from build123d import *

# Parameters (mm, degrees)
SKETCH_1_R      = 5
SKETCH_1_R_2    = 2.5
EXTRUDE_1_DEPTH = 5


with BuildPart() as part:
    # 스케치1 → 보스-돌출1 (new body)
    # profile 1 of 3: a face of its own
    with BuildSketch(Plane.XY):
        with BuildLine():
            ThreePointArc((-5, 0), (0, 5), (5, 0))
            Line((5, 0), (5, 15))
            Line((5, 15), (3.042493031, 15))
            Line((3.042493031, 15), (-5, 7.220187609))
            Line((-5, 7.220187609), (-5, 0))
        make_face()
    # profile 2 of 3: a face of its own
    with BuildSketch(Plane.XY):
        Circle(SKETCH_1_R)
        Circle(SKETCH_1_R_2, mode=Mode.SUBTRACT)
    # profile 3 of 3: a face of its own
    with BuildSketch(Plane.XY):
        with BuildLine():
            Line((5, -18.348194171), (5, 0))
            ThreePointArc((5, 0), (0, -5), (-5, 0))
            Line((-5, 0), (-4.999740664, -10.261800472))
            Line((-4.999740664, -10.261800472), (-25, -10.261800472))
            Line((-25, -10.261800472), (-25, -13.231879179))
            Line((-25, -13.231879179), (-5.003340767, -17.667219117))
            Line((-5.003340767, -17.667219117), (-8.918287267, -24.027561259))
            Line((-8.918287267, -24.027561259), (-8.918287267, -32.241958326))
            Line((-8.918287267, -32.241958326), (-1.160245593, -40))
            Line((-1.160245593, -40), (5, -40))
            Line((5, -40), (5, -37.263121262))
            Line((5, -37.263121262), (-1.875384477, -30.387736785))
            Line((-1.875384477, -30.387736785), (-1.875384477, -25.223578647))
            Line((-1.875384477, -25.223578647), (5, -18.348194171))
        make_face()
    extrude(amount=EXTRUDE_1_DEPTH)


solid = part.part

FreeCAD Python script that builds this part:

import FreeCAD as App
import Part
import Sketcher

V = App.Vector


def add_polygon(sketch, points):
    """Adds a closed chain of lines whose ends are joined by coincident constraints."""
    first, n = sketch.GeometryCount, len(points)
    for a, b in zip(points, points[1:] + points[:1]):
        sketch.addGeometry(Part.LineSegment(App.Vector(*a, 0), App.Vector(*b, 0)), False)
    for i in range(n):
        sketch.addConstraint(Sketcher.Constraint("Coincident", first + i, 2, first + (i + 1) % n, 1))

doc = App.newDocument("Part")
body = doc.addObject("PartDesign::Body", "Body")

# Sketch on XY plane
sketch1 = body.newObject("Sketcher::SketchObject", "Sketch")
sketch1.AttachmentSupport = (doc.getObject("XY_Plane"), [""])
sketch1.MapMode = "FlatFace"
add_polygon(sketch1, [(5, 15), (3.042493, 15), (-5, 7.220188), (-5, 0), (-4.999741, -10.2618), (-25, -10.2618), (-25, -13.231879), (-5.003341, -17.667219), (-8.918287, -24.027561), (-8.918287, -32.241958), (-1.160246, -40), (5, -40), (5, -37.263121), (-1.875384, -30.387737), (-1.875384, -25.223579), (5, -18.348194)])  # lines 0-15
sketch1.addGeometry(Part.Circle(V(0, 0, 0), V(0, 0, 1), 2.5), False)  # 16
sketch1.addConstraint(Sketcher.Constraint("Horizontal", 0))
sketch1.addConstraint(Sketcher.Constraint("Vertical", 2))
sketch1.addConstraint(Sketcher.Constraint("Horizontal", 4))
sketch1.addConstraint(Sketcher.Constraint("Vertical", 5))
sketch1.addConstraint(Sketcher.Constraint("Vertical", 8))
sketch1.addConstraint(Sketcher.Constraint("Horizontal", 10))
sketch1.addConstraint(Sketcher.Constraint("Vertical", 11))
sketch1.addConstraint(Sketcher.Constraint("Vertical", 13))
sketch1.addConstraint(Sketcher.Constraint("Vertical", 15))
sketch1.addConstraint(Sketcher.Constraint("Coincident", 16, 3, -1, 1))
sketch1.addConstraint(Sketcher.Constraint("PointOnObject", 2, 2, -1))
sketch1.addConstraint(Sketcher.Constraint("Parallel", 9, 12))
sketch1.addConstraint(Sketcher.Constraint("Perpendicular", 12, 14))
sketch1.addConstraint(Sketcher.Constraint("Vertical", 11, 2, 14, 2))
sketch1.addConstraint(Sketcher.Constraint("Equal", 12, 14))
sketch1.addConstraint(Sketcher.Constraint("Diameter", 16, 5.0))
sketch1.addConstraint(Sketcher.Constraint("DistanceY", -1, 1, 0, 2, 15.0))
sketch1.addConstraint(Sketcher.Constraint("DistanceX", 1, 2, -1, 1, 5.0))
sketch1.addConstraint(Sketcher.Constraint("DistanceX", 4, 2, -1, 1, 25.0))
sketch1.addConstraint(Sketcher.Constraint("DistanceY", 9, 2, -1, 1, 40.0))
sketch1.addConstraint(Sketcher.Constraint("DistanceX", -1, 1, 10, 2, 5.0))
sketch1.addConstraint(Sketcher.Constraint("Distance", 1, 11.189601))
sketch1.addConstraint(Sketcher.Constraint("Distance", 3, 10.2618))
sketch1.addConstraint(Sketcher.Constraint("DistanceX", 4, 2, 4, 1, 20.000259))
sketch1.addConstraint(Sketcher.Constraint("DistanceY", 5, 2, 5, 1, 2.970079))
sketch1.addConstraint(Sketcher.Constraint("DistanceY", 11, 1, 11, 2, 2.736879))
sketch1.addConstraint(Sketcher.Constraint("DistanceY", 13, 1, 13, 2, 5.164158))
sketch1.addConstraint(Sketcher.Constraint("DistanceX", 6, 2, 3, 2, 0.0036))
sketch1.addConstraint(Sketcher.Constraint("Distance", 6, 20.482642))
sketch1.addConstraint(Sketcher.Constraint("Distance", 7, 7.468652))
sketch1.addConstraint(Sketcher.Constraint("Distance", 12, 9.723262))
sketch1.addConstraint(Sketcher.Constraint("DistanceX", 0, 2, 0, 1, 1.957507))
sketch1.addConstraint(Sketcher.Constraint("DistanceX", 10, 1, 10, 2, 6.160246))
sketch1.addConstraint(Sketcher.Constraint("DistanceY", 8, 2, 8, 1, 8.214397))
pad1 = body.newObject("PartDesign::Pad", "Pad")
pad1.Profile = sketch1
pad1.Length = 5

doc.recompute()
